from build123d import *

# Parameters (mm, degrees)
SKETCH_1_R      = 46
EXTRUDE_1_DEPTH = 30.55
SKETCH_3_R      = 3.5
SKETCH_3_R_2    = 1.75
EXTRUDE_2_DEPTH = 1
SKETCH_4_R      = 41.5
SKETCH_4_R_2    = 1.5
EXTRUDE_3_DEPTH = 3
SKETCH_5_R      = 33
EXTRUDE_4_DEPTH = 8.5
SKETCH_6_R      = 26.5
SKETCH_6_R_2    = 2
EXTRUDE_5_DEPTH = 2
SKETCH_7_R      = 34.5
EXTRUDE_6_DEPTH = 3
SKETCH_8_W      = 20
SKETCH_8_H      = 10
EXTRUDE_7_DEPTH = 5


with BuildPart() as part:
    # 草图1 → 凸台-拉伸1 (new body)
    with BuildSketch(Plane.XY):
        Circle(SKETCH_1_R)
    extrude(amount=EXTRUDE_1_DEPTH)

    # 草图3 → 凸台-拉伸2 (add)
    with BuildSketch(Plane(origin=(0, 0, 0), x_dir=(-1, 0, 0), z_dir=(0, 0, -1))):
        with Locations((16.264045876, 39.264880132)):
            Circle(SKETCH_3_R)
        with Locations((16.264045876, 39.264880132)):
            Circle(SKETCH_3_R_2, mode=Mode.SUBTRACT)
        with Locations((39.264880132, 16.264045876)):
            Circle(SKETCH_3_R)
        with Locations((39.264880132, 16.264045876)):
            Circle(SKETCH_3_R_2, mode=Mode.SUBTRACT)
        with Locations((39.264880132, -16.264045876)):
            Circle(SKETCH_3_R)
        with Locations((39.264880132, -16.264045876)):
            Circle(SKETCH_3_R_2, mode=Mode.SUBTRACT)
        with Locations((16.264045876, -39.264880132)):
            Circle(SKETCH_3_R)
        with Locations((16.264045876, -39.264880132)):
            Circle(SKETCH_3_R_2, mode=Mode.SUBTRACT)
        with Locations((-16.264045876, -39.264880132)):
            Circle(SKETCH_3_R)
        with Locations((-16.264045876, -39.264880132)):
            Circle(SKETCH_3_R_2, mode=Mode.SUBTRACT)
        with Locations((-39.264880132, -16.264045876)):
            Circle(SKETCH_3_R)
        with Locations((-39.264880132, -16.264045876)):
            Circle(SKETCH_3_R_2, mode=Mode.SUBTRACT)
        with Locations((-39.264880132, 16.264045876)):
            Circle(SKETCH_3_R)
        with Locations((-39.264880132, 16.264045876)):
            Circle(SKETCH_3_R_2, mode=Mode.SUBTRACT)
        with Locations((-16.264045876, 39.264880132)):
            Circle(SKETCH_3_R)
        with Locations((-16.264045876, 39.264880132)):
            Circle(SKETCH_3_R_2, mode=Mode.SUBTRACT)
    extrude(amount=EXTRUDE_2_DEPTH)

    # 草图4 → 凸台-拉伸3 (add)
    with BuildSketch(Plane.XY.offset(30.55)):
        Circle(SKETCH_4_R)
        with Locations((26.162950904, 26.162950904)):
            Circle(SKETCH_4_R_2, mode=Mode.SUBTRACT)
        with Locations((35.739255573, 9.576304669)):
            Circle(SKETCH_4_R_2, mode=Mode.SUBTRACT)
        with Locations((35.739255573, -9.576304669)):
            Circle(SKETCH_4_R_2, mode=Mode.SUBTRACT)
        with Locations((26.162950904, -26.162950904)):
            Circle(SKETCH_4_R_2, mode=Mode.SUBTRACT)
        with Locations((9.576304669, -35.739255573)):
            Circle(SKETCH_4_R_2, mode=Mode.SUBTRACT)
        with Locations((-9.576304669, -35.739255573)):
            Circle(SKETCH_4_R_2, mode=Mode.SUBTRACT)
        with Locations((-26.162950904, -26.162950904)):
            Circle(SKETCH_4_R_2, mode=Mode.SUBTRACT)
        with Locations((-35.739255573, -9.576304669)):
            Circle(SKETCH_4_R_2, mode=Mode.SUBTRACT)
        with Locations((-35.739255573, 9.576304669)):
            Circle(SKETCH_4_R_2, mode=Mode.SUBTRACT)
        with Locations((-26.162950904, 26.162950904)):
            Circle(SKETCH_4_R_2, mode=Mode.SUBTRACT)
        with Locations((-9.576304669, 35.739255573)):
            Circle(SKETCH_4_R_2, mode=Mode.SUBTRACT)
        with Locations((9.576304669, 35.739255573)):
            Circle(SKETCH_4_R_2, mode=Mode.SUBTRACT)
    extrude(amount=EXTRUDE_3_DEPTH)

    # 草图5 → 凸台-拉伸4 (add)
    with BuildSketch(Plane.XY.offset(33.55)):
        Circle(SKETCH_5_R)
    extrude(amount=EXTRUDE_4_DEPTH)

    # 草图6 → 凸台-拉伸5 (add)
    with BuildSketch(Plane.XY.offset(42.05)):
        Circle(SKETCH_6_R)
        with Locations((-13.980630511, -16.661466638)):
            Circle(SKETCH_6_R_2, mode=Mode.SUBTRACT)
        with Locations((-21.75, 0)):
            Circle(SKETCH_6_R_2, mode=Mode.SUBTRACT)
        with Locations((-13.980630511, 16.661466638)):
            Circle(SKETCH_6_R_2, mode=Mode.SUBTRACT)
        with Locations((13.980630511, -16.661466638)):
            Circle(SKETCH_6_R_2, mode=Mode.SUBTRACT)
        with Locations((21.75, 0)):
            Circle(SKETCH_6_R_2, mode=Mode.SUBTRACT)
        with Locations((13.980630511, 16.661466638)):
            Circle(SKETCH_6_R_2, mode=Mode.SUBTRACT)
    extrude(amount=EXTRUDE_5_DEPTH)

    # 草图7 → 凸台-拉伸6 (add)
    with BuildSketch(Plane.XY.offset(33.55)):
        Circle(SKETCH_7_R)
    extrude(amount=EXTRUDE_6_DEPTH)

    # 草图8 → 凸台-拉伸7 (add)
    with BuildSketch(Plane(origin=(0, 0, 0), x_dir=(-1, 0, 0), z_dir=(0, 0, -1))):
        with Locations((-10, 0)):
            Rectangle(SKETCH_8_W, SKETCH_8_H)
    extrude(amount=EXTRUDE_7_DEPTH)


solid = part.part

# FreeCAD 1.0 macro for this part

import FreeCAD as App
import Part
import Sketcher
from FreeCAD import Vector

doc = App.newDocument("Part")
body = doc.addObject("PartDesign::Body", "Body")

sketch1 = body.newObject("Sketcher::SketchObject", "Sketch")
sketch1.AttachmentSupport = (doc.getObject("XY_Plane"), [""])
sketch1.MapMode = "FlatFace"
sketch1.addGeometry(Part.Circle(Vector(0, 0, 0), Vector(0, 0, 1), 46), False)
sketch1.addConstraint(Sketcher.Constraint("Coincident", 0, 3, -1, 1))
sketch1.addConstraint(Sketcher.Constraint("Diameter", 0, 92.0))
pad1 = body.newObject("PartDesign::Pad", "Pad")
pad1.Profile = sketch1
pad1.Length = 30.55

sketch2 = body.newObject("Sketcher::SketchObject", "Sketch001")
sketch2.AttachmentSupport = (doc.getObject("XY_Plane"), [""])
sketch2.MapMode = "FlatFace"
sketch2.addGeometry(Part.Circle(Vector(-16.3, 39.3, 0), Vector(0, 0, 1), 3.5), False)
sketch2.addGeometry(Part.Circle(Vector(-16.3, 39.3, 0), Vector(0, 0, 1), 1.8), False)
sketch2.addGeometry(Part.Circle(Vector(-39.3, 16.3, 0), Vector(0, 0, 1), 3.5), False)
sketch2.addGeometry(Part.Circle(Vector(-39.3, 16.3, 0), Vector(0, 0, 1), 1.8), False)
sketch2.addGeometry(Part.Circle(Vector(-39.3, -16.3, 0), Vector(0, 0, 1), 3.5), False)
sketch2.addGeometry(Part.Circle(Vector(-39.3, -16.3, 0), Vector(0, 0, 1), 1.8), False)
sketch2.addGeometry(Part.Circle(Vector(-16.3, -39.3, 0), Vector(0, 0, 1), 3.5), False)
sketch2.addGeometry(Part.Circle(Vector(-16.3, -39.3, 0), Vector(0, 0, 1), 1.8), False)
sketch2.addGeometry(Part.Circle(Vector(16.3, -39.3, 0), Vector(0, 0, 1), 3.5), False)
sketch2.addGeometry(Part.Circle(Vector(16.3, -39.3, 0), Vector(0, 0, 1), 1.8), False)
sketch2.addGeometry(Part.Circle(Vector(39.3, -16.3, 0), Vector(0, 0, 1), 3.5), False)
sketch2.addGeometry(Part.Circle(Vector(39.3, -16.3, 0), Vector(0, 0, 1), 1.8), False)
sketch2.addGeometry(Part.Circle(Vector(39.3, 16.3, 0), Vector(0, 0, 1), 3.5), False)
sketch2.addGeometry(Part.Circle(Vector(39.3, 16.3, 0), Vector(0, 0, 1), 1.8), False)
sketch2.addGeometry(Part.Circle(Vector(16.3, 39.3, 0), Vector(0, 0, 1), 3.5), False)
sketch2.addGeometry(Part.Circle(Vector(16.3, 39.3, 0), Vector(0, 0, 1), 1.8), False)
sketch2.addConstraint(Sketcher.Constraint("Coincident", 1, 3, 0, 3))
sketch2.addConstraint(Sketcher.Constraint("Coincident", 3, 3, 2, 3))
sketch2.addConstraint(Sketcher.Constraint("Coincident", 5, 3, 4, 3))
sketch2.addConstraint(Sketcher.Constraint("Coincident", 7, 3, 6, 3))
sketch2.addConstraint(Sketcher.Constraint("Coincident", 9, 3, 8, 3))
sketch2.addConstraint(Sketcher.Constraint("Coincident", 11, 3, 10, 3))
sketch2.addConstraint(Sketcher.Constraint("Coincident", 13, 3, 12, 3))
sketch2.addConstraint(Sketcher.Constraint("Coincident", 15, 3, 14, 3))
sketch2.addConstraint(Sketcher.Constraint("Equal", 0, 2))
sketch2.addConstraint(Sketcher.Constraint("Equal", 1, 3))
sketch2.addConstraint(Sketcher.Constraint("Equal", 2, 4))
sketch2.addConstraint(Sketcher.Constraint("Equal", 3, 5))
sketch2.addConstraint(Sketcher.Constraint("Equal", 4, 6))
sketch2.addConstraint(Sketcher.Constraint("Equal", 5, 7))
sketch2.addConstraint(Sketcher.Constraint("Equal", 6, 8))
sketch2.addConstraint(Sketcher.Constraint("Equal", 7, 9))
sketch2.addConstraint(Sketcher.Constraint("Equal", 8, 10))
sketch2.addConstraint(Sketcher.Constraint("Equal", 9, 11))
sketch2.addConstraint(Sketcher.Constraint("Equal", 10, 12))
sketch2.addConstraint(Sketcher.Constraint("Equal", 11, 13))
sketch2.addConstraint(Sketcher.Constraint("Equal", 12, 14))
sketch2.addConstraint(Sketcher.Constraint("Equal", 13, 15))
sketch2.addConstraint(Sketcher.Constraint("Symmetric", 0, 3, 8, 3, -1, 1))
sketch2.addConstraint(Sketcher.Constraint("Symmetric", 2, 3, 10, 3, -1, 1))
sketch2.addConstraint(Sketcher.Constraint("Symmetric", 4, 3, 12, 3, -1, 1))
sketch2.addConstraint(Sketcher.Constraint("Symmetric", 6, 3, 14, 3, -1, 1))
sketch2.addConstraint(Sketcher.Constraint("Symmetric", 6, 3, 8, 3, -2))
sketch2.addConstraint(Sketcher.Constraint("Symmetric", 4, 3, 10, 3, -2))
sketch2.addConstraint(Sketcher.Constraint("Diameter", 0, 7.0))
sketch2.addConstraint(Sketcher.Constraint("Diameter", 1, 3.5))
sketch2.addConstraint(Sketcher.Constraint("DistanceY", -1, 1, 0, 3, 39.26488))
sketch2.addConstraint(Sketcher.Constraint("DistanceX", 2, 3, -1, 1, 39.26488))
sketch2.addConstraint(Sketcher.Constraint("DistanceY", 4, 3, 2, 3, 32.528092))
sketch2.addConstraint(Sketcher.Constraint("DistanceX", 6, 3, 8, 3, 32.528092))
pad2 = body.newObject("PartDesign::Pad", "Pad001")
pad2.Profile = sketch2
pad2.Length = 1
pad2.Reversed = True

sketch3 = body.newObject("Sketcher::SketchObject", "Sketch002")
sketch3.AttachmentSupport = (doc.getObject("XY_Plane"), [""])
sketch3.MapMode = "FlatFace"
sketch3.AttachmentOffset = App.Placement(Vector(0, 0, 30.55), App.Rotation())
sketch3.addGeometry(Part.Circle(Vector(0, 0, 0), Vector(0, 0, 1), 41.5), False)
sketch3.addGeometry(Part.Circle(Vector(-26.2, -26.2, 0), Vector(0, 0, 1), 1.5), False)
sketch3.addGeometry(Part.Circle(Vector(-9.6, -35.7, 0), Vector(0, 0, 1), 1.5), False)
sketch3.addGeometry(Part.Circle(Vector(-35.7, -9.6, 0), Vector(0, 0, 1), 1.5), False)
sketch3.addGeometry(Part.Circle(Vector(9.6, -35.7, 0), Vector(0, 0, 1), 1.5), False)
sketch3.addGeometry(Part.Circle(Vector(26.2, -26.2, 0), Vector(0, 0, 1), 1.5), False)
sketch3.addGeometry(Part.Circle(Vector(35.7, -9.6, 0), Vector(0, 0, 1), 1.5), False)
sketch3.addGeometry(Part.Circle(Vector(-35.7, 9.6, 0), Vector(0, 0, 1), 1.5), False)
sketch3.addGeometry(Part.Circle(Vector(-26.2, 26.2, 0), Vector(0, 0, 1), 1.5), False)
sketch3.addGeometry(Part.Circle(Vector(-9.6, 35.7, 0), Vector(0, 0, 1), 1.5), False)
sketch3.addGeometry(Part.Circle(Vector(35.7, 9.6, 0), Vector(0, 0, 1), 1.5), False)
sketch3.addGeometry(Part.Circle(Vector(9.6, 35.7, 0), Vector(0, 0, 1), 1.5), False)
sketch3.addGeometry(Part.Circle(Vector(26.2, 26.2, 0), Vector(0, 0, 1), 1.5), False)
sketch3.addConstraint(Sketcher.Constraint("Coincident", 0, 3, -1, 1))
sketch3.addConstraint(Sketcher.Constraint("Equal", 1, 2))
sketch3.addConstraint(Sketcher.Constraint("Equal", 2, 3))
sketch3.addConstraint(Sketcher.Constraint("Equal", 3, 4))
sketch3.addConstraint(Sketcher.Constraint("Equal", 4, 5))
sketch3.addConstraint(Sketcher.Constraint("Equal", 5, 6))
sketch3.addConstraint(Sketcher.Constraint("Equal", 6, 7))
sketch3.addConstraint(Sketcher.Constraint("Equal", 7, 8))
sketch3.addConstraint(Sketcher.Constraint("Equal", 8, 9))
sketch3.addConstraint(Sketcher.Constraint("Equal", 9, 10))
sketch3.addConstraint(Sketcher.Constraint("Equal", 10, 11))
sketch3.addConstraint(Sketcher.Constraint("Equal", 11, 12))
sketch3.addConstraint(Sketcher.Constraint("Symmetric", 6, 3, 7, 3, -1, 1))
sketch3.addConstraint(Sketcher.Constraint("Symmetric", 5, 3, 8, 3, -1, 1))
sketch3.addConstraint(Sketcher.Constraint("Symmetric", 4, 3, 9, 3, -1, 1))
sketch3.addConstraint(Sketcher.Constraint("Symmetric", 3, 3, 10, 3, -1, 1))
sketch3.addConstraint(Sketcher.Constraint("Symmetric", 2, 3, 11, 3, -1, 1))
sketch3.addConstraint(Sketcher.Constraint("Symmetric", 1, 3, 12, 3, -1, 1))
sketch3.addConstraint(Sketcher.Constraint("Symmetric", 2, 3, 4, 3, -2))
sketch3.addConstraint(Sketcher.Constraint("Symmetric", 1, 3, 5, 3, -2))
sketch3.addConstraint(Sketcher.Constraint("Symmetric", 3, 3, 6, 3, -2))
sketch3.addConstraint(Sketcher.Constraint("Diameter", 0, 83.0))
sketch3.addConstraint(Sketcher.Constraint("Diameter", 1, 3.0))
sketch3.addConstraint(Sketcher.Constraint("DistanceX", 1, 3, 5, 3, 52.325902))
sketch3.addConstraint(Sketcher.Constraint("DistanceY", 1, 3, 8, 3, 52.325902))
sketch3.addConstraint(Sketcher.Constraint("DistanceX", 3, 3, 2, 3, 26.162951))
sketch3.addConstraint(Sketcher.Constraint("DistanceY", 2, 3, 3, 3, 26.162951))
sketch3.addConstraint(Sketcher.Constraint("DistanceX", 2, 3, 4, 3, 19.152609))
sketch3.addConstraint(Sketcher.Constraint("DistanceY", 3, 3, 7, 3, 19.152609))
pad3 = body.newObject("PartDesign::Pad", "Pad002")
pad3.Profile = sketch3
pad3.Length = 3

sketch4 = body.newObject("Sketcher::SketchObject", "Sketch003")
sketch4.AttachmentSupport = (doc.getObject("XY_Plane"), [""])
sketch4.MapMode = "FlatFace"
sketch4.AttachmentOffset = App.Placement(Vector(0, 0, 33.55), App.Rotation())
sketch4.addGeometry(Part.Circle(Vector(0, 0, 0), Vector(0, 0, 1), 33), False)
sketch4.addConstraint(Sketcher.Constraint("Coincident", 0, 3, -1, 1))
sketch4.addConstraint(Sketcher.Constraint("Diameter", 0, 66.0))
pad4 = body.newObject("PartDesign::Pad", "Pad003")
pad4.Profile = sketch4
pad4.Length = 8.5

sketch5 = body.newObject("Sketcher::SketchObject", "Sketch004")
sketch5.AttachmentSupport = (doc.getObject("XY_Plane"), [""])
sketch5.MapMode = "FlatFace"
sketch5.AttachmentOffset = App.Placement(Vector(0, 0, 42.05), App.Rotation())
sketch5.addGeometry(Part.Circle(Vector(0, 0, 0), Vector(0, 0, 1), 26.5), False)
sketch5.addGeometry(Part.Circle(Vector(-14, -16.7, 0), Vector(0, 0, 1), 2), False)
sketch5.addGeometry(Part.Circle(Vector(14, -16.7, 0), Vector(0, 0, 1), 2), False)
sketch5.addGeometry(Part.Circle(Vector(-21.8, 0, 0), Vector(0, 0, 1), 2), False)
sketch5.addGeometry(Part.Circle(Vector(-14, 16.7, 0), Vector(0, 0, 1), 2), False)
sketch5.addGeometry(Part.Circle(Vector(21.8, 0, 0), Vector(0, 0, 1), 2), False)
sketch5.addGeometry(Part.Circle(Vector(14, 16.7, 0), Vector(0, 0, 1), 2), False)
sketch5.addConstraint(Sketcher.Constraint("Coincident", 0, 3, -1, 1))
sketch5.addConstraint(Sketcher.Constraint("Equal", 1, 2))
sketch5.addConstraint(Sketcher.Constraint("Equal", 2, 3))
sketch5.addConstraint(Sketcher.Constraint("Equal", 3, 4))
sketch5.addConstraint(Sketcher.Constraint("Equal", 4, 5))
sketch5.addConstraint(Sketcher.Constraint("Equal", 5, 6))
sketch5.addConstraint(Sketcher.Constraint("Symmetric", 2, 3, 4, 3, -1, 1))
sketch5.addConstraint(Sketcher.Constraint("Symmetric", 3, 3, 5, 3, -1, 1))
sketch5.addConstraint(Sketcher.Constraint("Symmetric", 1, 3, 6, 3, -1, 1))
sketch5.addConstraint(Sketcher.Constraint("Symmetric", 1, 3, 2, 3, -2))
sketch5.addConstraint(Sketcher.Constraint("PointOnObject", 3, 3, -1))
sketch5.addConstraint(Sketcher.Constraint("Diameter", 0, 53.0))
sketch5.addConstraint(Sketcher.Constraint("Diameter", 1, 4.0))
sketch5.addConstraint(Sketcher.Constraint("DistanceX", 3, 3, 5, 3, 43.5))
sketch5.addConstraint(Sketcher.Constraint("DistanceX", 1, 3, -1, 1, 13.980631))
sketch5.addConstraint(Sketcher.Constraint("DistanceY", 1, 3, -1, 1, 16.661467))
pad5 = body.newObject("PartDesign::Pad", "Pad004")
pad5.Profile = sketch5
pad5.Length = 2

sketch6 = body.newObject("Sketcher::SketchObject", "Sketch005")
sketch6.AttachmentSupport = (doc.getObject("XY_Plane"), [""])
sketch6.MapMode = "FlatFace"
sketch6.AttachmentOffset = App.Placement(Vector(0, 0, 33.55), App.Rotation())
sketch6.addGeometry(Part.Circle(Vector(0, 0, 0), Vector(0, 0, 1), 34), False)
sketch6.addConstraint(Sketcher.Constraint("Coincident", 0, 3, -1, 1))
sketch6.addConstraint(Sketcher.Constraint("Diameter", 0, 69.0))
pad6 = body.newObject("PartDesign::Pad", "Pad005")
pad6.Profile = sketch6
pad6.Length = 3

sketch7 = body.newObject("Sketcher::SketchObject", "Sketch006")
sketch7.AttachmentSupport = (doc.getObject("XY_Plane"), [""])
sketch7.MapMode = "FlatFace"
sketch7.addGeometry(Part.LineSegment(Vector(20, 5, 0), Vector(20, -5, 0)), False)
sketch7.addGeometry(Part.LineSegment(Vector(20, -5, 0), Vector(0, -5, 0)), False)
sketch7.addGeometry(Part.LineSegment(Vector(0, -5, 0), Vector(0, 5, 0)), False)
sketch7.addGeometry(Part.LineSegment(Vector(0, 5, 0), Vector(20, 5, 0)), False)
sketch7.addConstraint(Sketcher.Constraint("Coincident", 0, 2, 1, 1))
sketch7.addConstraint(Sketcher.Constraint("Coincident", 1, 2, 2, 1))
sketch7.addConstraint(Sketcher.Constraint("Coincident", 2, 2, 3, 1))
sketch7.addConstraint(Sketcher.Constraint("Coincident", 3, 2, 0, 1))
sketch7.addConstraint(Sketcher.Constraint("Vertical", 0))
sketch7.addConstraint(Sketcher.Constraint("Horizontal", 1))
sketch7.addConstraint(Sketcher.Constraint("Vertical", 2))
sketch7.addConstraint(Sketcher.Constraint("Horizontal", 3))
sketch7.addConstraint(Sketcher.Constraint("Symmetric", 1, 2, 2, 2, -1, 1))
sketch7.addConstraint(Sketcher.Constraint("DistanceX", 1, 2, 1, 1, 20.0))
sketch7.addConstraint(Sketcher.Constraint("DistanceY", 0, 2, 0, 1, 10.0))
pad7 = body.newObject("PartDesign::Pad", "Pad006")
pad7.Profile = sketch7
pad7.Length = 5
pad7.Reversed = True

doc.recompute()
